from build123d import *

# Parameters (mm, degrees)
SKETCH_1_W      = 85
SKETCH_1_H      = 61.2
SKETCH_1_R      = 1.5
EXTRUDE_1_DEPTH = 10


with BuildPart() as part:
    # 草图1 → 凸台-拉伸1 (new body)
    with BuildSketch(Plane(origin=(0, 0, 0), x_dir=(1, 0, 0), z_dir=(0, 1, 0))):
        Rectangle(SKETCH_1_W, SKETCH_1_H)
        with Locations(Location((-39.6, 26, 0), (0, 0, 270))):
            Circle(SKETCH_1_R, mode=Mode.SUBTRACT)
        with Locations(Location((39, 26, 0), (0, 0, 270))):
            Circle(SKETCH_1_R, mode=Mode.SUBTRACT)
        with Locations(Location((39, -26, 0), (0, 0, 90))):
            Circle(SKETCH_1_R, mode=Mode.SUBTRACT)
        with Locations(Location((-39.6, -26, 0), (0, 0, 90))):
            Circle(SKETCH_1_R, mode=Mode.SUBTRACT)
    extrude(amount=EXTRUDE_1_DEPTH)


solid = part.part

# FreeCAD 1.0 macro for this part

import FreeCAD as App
import Part
import Sketcher

V = App.Vector
Q = App.Units.Quantity

doc = App.newDocument("Part")
body = doc.addObject("PartDesign::Body", "Body")

sketch1 = doc.addObject("Sketcher::SketchObject", "Sketch")
body.addObject(sketch1)
sketch1.AttachmentSupport = (doc.XZ_Plane, [""])
sketch1.MapMode = "FlatFace"
sketch1.addGeometry(Part.LineSegment(V(-42.5, -30.6, 0), V(-42.5, 30.6, 0)), False)
sketch1.addGeometry(Part.LineSegment(V(-42.5, 30.6, 0), V(42.5, 30.6, 0)), False)
sketch1.addGeometry(Part.LineSegment(V(42.5, 30.6, 0), V(42.5, -30.6, 0)), False)
sketch1.addGeometry(Part.LineSegment(V(42.5, -30.6, 0), V(-42.5, -30.6, 0)), False)
sketch1.addGeometry(Part.Circle(V(-39.6, 26, 0), V(0, 0, 1), 1.5), False)
sketch1.addGeometry(Part.Circle(V(39, 26, 0), V(0, 0, 1), 1.5), False)
sketch1.addGeometry(Part.Circle(V(-39.6, -26, 0), V(0, 0, 1), 1.5), False)
sketch1.addGeometry(Part.Circle(V(39, -26, 0), V(0, 0, 1), 1.5), False)
sketch1.addConstraint(Sketcher.Constraint("Coincident", 0, 2, 1, 1))
sketch1.addConstraint(Sketcher.Constraint("Coincident", 1, 2, 2, 1))
sketch1.addConstraint(Sketcher.Constraint("Coincident", 2, 2, 3, 1))
sketch1.addConstraint(Sketcher.Constraint("Coincident", 3, 2, 0, 1))
sketch1.addConstraint(Sketcher.Constraint("Vertical", 0))
sketch1.addConstraint(Sketcher.Constraint("Horizontal", 1))
sketch1.addConstraint(Sketcher.Constraint("Vertical", 2))
sketch1.addConstraint(Sketcher.Constraint("Horizontal", 3))
sketch1.addConstraint(Sketcher.Constraint("Equal", 4, 5))
sketch1.addConstraint(Sketcher.Constraint("Equal", 5, 6))
sketch1.addConstraint(Sketcher.Constraint("Equal", 6, 7))
sketch1.addConstraint(Sketcher.Constraint("Symmetric", 0, 2, 2, 2, -1, 1))
sketch1.addConstraint(Sketcher.Constraint("Symmetric", 4, 3, 6, 3, -1))
sketch1.addConstraint(Sketcher.Constraint("Symmetric", 5, 3, 7, 3, -1))
sketch1.addConstraint(Sketcher.Constraint("Horizontal", 4, 3, 5, 3))
sketch1.addConstraint(Sketcher.Constraint("Diameter", 4, Q("3 mm")))
sketch1.addConstraint(Sketcher.Constraint("DistanceX", 1, 1, 1, 2, Q("85 mm")))
sketch1.addConstraint(Sketcher.Constraint("DistanceY", 0, 1, 0, 2, Q("61.2 mm")))
sketch1.addConstraint(Sketcher.Constraint("DistanceY", -1, 1, 4, 3, Q("26 mm")))
sketch1.addConstraint(Sketcher.Constraint("DistanceX", -1, 1, 5, 3, Q("39 mm")))
sketch1.addConstraint(Sketcher.Constraint("DistanceX", 4, 3, -1, 1, Q("39.6 mm")))
pad1 = doc.addObject("PartDesign::Pad", "Pad")
body.addObject(pad1)
pad1.Profile = sketch1
pad1.Length = 10
pad1.Reversed = True

doc.recompute()
